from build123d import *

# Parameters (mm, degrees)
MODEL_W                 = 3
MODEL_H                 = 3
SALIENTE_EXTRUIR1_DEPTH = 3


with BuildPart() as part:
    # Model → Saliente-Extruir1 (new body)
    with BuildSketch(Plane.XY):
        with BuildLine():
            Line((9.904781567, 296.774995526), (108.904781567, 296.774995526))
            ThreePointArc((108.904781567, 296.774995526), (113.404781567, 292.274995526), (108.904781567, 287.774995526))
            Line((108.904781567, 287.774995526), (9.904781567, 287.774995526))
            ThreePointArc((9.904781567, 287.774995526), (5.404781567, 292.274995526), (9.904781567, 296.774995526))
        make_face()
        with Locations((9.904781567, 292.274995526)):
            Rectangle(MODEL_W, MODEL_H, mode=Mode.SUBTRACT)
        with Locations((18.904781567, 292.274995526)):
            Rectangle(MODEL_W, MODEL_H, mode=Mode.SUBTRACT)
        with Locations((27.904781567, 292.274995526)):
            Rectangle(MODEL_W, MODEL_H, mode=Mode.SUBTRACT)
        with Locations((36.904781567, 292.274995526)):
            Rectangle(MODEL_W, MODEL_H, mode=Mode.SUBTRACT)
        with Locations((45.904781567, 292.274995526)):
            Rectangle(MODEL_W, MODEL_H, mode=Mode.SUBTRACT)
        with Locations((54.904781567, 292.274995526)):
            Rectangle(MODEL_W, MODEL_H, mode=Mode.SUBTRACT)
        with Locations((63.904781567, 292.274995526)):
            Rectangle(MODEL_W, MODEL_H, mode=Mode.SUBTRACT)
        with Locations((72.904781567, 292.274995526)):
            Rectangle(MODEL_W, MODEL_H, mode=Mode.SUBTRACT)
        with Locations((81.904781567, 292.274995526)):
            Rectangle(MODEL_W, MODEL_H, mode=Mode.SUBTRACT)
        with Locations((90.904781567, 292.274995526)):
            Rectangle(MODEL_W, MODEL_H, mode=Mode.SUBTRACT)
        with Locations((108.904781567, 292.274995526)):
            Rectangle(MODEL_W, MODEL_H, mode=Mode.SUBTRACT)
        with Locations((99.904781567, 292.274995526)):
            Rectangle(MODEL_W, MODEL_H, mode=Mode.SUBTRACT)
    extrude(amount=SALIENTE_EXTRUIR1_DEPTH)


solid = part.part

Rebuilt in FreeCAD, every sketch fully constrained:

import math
import FreeCAD as App
import Part
import Sketcher

V = App.Vector
Q = App.Units.Quantity


def add_polygon(sketch, points):
    """Adds a closed chain of lines whose ends are joined by coincident constraints."""
    first, n = sketch.GeometryCount, len(points)
    for a, b in zip(points, points[1:] + points[:1]):
        sketch.addGeometry(Part.LineSegment(App.Vector(*a, 0), App.Vector(*b, 0)), False)
    for i in range(n):
        sketch.addConstraint(Sketcher.Constraint("Coincident", first + i, 2, first + (i + 1) % n, 1))

doc = App.newDocument("Part")
body = doc.addObject("PartDesign::Body", "Body")

# Sketch on XY plane
sketch1 = body.newObject("Sketcher::SketchObject", "Sketch")
sketch1.AttachmentSupport = (doc.getObject("XY_Plane"), [""])
sketch1.MapMode = "FlatFace"
sketch1.addGeometry(Part.LineSegment(V(108.9, 296.8, 0), V(9.9, 296.8, 0)), False)  # 0
sketch1.addGeometry(Part.ArcOfCircle(Part.Circle(V(9.9, 292.3, 0), V(0, 0, 1), 4.5), math.radians(90), math.radians(270)), False)  # 1
sketch1.addGeometry(Part.LineSegment(V(9.9, 287.8, 0), V(108.9, 287.8, 0)), False)  # 2
sketch1.addGeometry(Part.ArcOfCircle(Part.Circle(V(108.9, 292.3, 0), V(0, 0, 1), 4.5), math.radians(-90), math.radians(90)), False)  # 3
add_polygon(sketch1, [(107.4, 290.8), (107.4, 293.8), (110.4, 293.8), (110.4, 290.8)])  # lines 4-7
add_polygon(sketch1, [(98.4, 290.8), (98.4, 293.8), (101.4, 293.8), (101.4, 290.8)])  # lines 8-11
add_polygon(sketch1, [(89.4, 290.8), (89.4, 293.8), (92.4, 293.8), (92.4, 290.8)])  # lines 12-15
add_polygon(sketch1, [(80.4, 290.8), (80.4, 293.8), (83.4, 293.8), (83.4, 290.8)])  # lines 16-19
add_polygon(sketch1, [(71.4, 290.8), (71.4, 293.8), (74.4, 293.8), (74.4, 290.8)])  # lines 20-23
add_polygon(sketch1, [(62.4, 290.8), (62.4, 293.8), (65.4, 293.8), (65.4, 290.8)])  # lines 24-27
add_polygon(sketch1, [(53.4, 290.8), (53.4, 293.8), (56.4, 293.8), (56.4, 290.8)])  # lines 28-31
add_polygon(sketch1, [(44.4, 290.8), (44.4, 293.8), (47.4, 293.8), (47.4, 290.8)])  # lines 32-35
add_polygon(sketch1, [(35.4, 290.8), (35.4, 293.8), (38.4, 293.8), (38.4, 290.8)])  # lines 36-39
add_polygon(sketch1, [(26.4, 290.8), (26.4, 293.8), (29.4, 293.8), (29.4, 290.8)])  # lines 40-43
add_polygon(sketch1, [(17.4, 290.8), (17.4, 293.8), (20.4, 293.8), (20.4, 290.8)])  # lines 44-47
add_polygon(sketch1, [(8.4, 290.8), (8.4, 293.8), (11.4, 293.8), (11.4, 290.8)])  # lines 48-51
sketch1.addConstraint([
    Sketcher.Constraint("Tangent", 0, 2, 1, 1),
    Sketcher.Constraint("Tangent", 1, 2, 2, 1),
    Sketcher.Constraint("Tangent", 2, 2, 3, 1),
    Sketcher.Constraint("Tangent", 3, 2, 0, 1),
    Sketcher.Constraint("Horizontal", 0),
    Sketcher.Constraint("Horizontal", 2),
    Sketcher.Constraint("Vertical", 4),
    Sketcher.Constraint("Horizontal", 5),
    Sketcher.Constraint("Vertical", 6),
    Sketcher.Constraint("Horizontal", 7),
    Sketcher.Constraint("Vertical", 8),
    Sketcher.Constraint("Horizontal", 9),
    Sketcher.Constraint("Vertical", 10),
    Sketcher.Constraint("Horizontal", 11),
    Sketcher.Constraint("Vertical", 12),
    Sketcher.Constraint("Horizontal", 13),
    Sketcher.Constraint("Vertical", 14),
    Sketcher.Constraint("Horizontal", 15),
    Sketcher.Constraint("Vertical", 16),
    Sketcher.Constraint("Horizontal", 17),
    Sketcher.Constraint("Vertical", 18),
    Sketcher.Constraint("Horizontal", 19),
    Sketcher.Constraint("Vertical", 20),
    Sketcher.Constraint("Horizontal", 21),
    Sketcher.Constraint("Vertical", 22),
    Sketcher.Constraint("Horizontal", 23),
    Sketcher.Constraint("Vertical", 24),
    Sketcher.Constraint("Horizontal", 25),
    Sketcher.Constraint("Vertical", 26),
    Sketcher.Constraint("Horizontal", 27),
    Sketcher.Constraint("Vertical", 28),
    Sketcher.Constraint("Horizontal", 29),
    Sketcher.Constraint("Vertical", 30),
    Sketcher.Constraint("Horizontal", 31),
    Sketcher.Constraint("Vertical", 32),
    Sketcher.Constraint("Horizontal", 33),
    Sketcher.Constraint("Vertical", 34),
    Sketcher.Constraint("Horizontal", 35),
    Sketcher.Constraint("Vertical", 36),
    Sketcher.Constraint("Horizontal", 37),
    Sketcher.Constraint("Vertical", 38),
    Sketcher.Constraint("Horizontal", 39),
    Sketcher.Constraint("Vertical", 40),
    Sketcher.Constraint("Horizontal", 41),
    Sketcher.Constraint("Vertical", 42),
    Sketcher.Constraint("Horizontal", 43),
    Sketcher.Constraint("Vertical", 44),
    Sketcher.Constraint("Horizontal", 45),
    Sketcher.Constraint("Vertical", 46),
    Sketcher.Constraint("Horizontal", 47),
    Sketcher.Constraint("Vertical", 48),
    Sketcher.Constraint("Horizontal", 49),
    Sketcher.Constraint("Vertical", 50),
    Sketcher.Constraint("Horizontal", 51),
    Sketcher.Constraint("Horizontal", 5, 2, 8, 2),
    Sketcher.Constraint("Horizontal", 7, 2, 10, 2),
    Sketcher.Constraint("Horizontal", 9, 2, 12, 2),
    Sketcher.Constraint("Horizontal", 11, 2, 14, 2),
    Sketcher.Constraint("Horizontal", 13, 2, 16, 2),
    Sketcher.Constraint("Horizontal", 15, 2, 18, 2),
    Sketcher.Constraint("Horizontal", 17, 2, 20, 2),
    Sketcher.Constraint("Horizontal", 19, 2, 22, 2),
    Sketcher.Constraint("Horizontal", 21, 2, 24, 2),
    Sketcher.Constraint("Horizontal", 23, 2, 26, 2),
    Sketcher.Constraint("Horizontal", 25, 2, 28, 2),
    Sketcher.Constraint("Horizontal", 27, 2, 30, 2),
    Sketcher.Constraint("Horizontal", 29, 2, 32, 2),
    Sketcher.Constraint("Horizontal", 31, 2, 34, 2),
    Sketcher.Constraint("Horizontal", 33, 2, 36, 2),
    Sketcher.Constraint("Horizontal", 35, 2, 38, 2),
    Sketcher.Constraint("Horizontal", 37, 2, 40, 2),
    Sketcher.Constraint("Horizontal", 39, 2, 42, 2),
    Sketcher.Constraint("Horizontal", 41, 2, 44, 2),
    Sketcher.Constraint("Horizontal", 43, 2, 46, 2),
    Sketcher.Constraint("Horizontal", 45, 2, 48, 2),
    Sketcher.Constraint("Horizontal", 47, 2, 50, 2),
    Sketcher.Constraint("Equal", 7, 9),
    Sketcher.Constraint("Equal", 11, 13),
    Sketcher.Constraint("Equal", 15, 17),
    Sketcher.Constraint("Equal", 19, 21),
    Sketcher.Constraint("Equal", 23, 25),
    Sketcher.Constraint("Equal", 27, 29),
    Sketcher.Constraint("Equal", 31, 33),
    Sketcher.Constraint("Equal", 35, 37),
    Sketcher.Constraint("Equal", 39, 41),
    Sketcher.Constraint("Equal", 43, 45),
    Sketcher.Constraint("Equal", 47, 49),
    Sketcher.Constraint("Equal", 51, 4),
    Sketcher.Constraint("Radius", 1, Q("4.5 mm")),
    Sketcher.Constraint("DistanceX", 0, 2, 0, 1, Q("99 mm")),
    Sketcher.Constraint("DistanceX", 5, 1, 5, 2, Q("3 mm")),
    Sketcher.Constraint("DistanceY", 4, 2, 3, 2, Q("3 mm")),
    Sketcher.Constraint("DistanceX", 8, 2, 4, 2, Q("9 mm")),
    Sketcher.Constraint("DistanceX", 12, 2, 8, 2, Q("9 mm")),
    Sketcher.Constraint("DistanceX", 16, 2, 12, 2, Q("9 mm")),
    Sketcher.Constraint("DistanceX", 20, 2, 16, 2, Q("9 mm")),
    Sketcher.Constraint("DistanceX", 24, 2, 20, 2, Q("9 mm")),
    Sketcher.Constraint("DistanceX", 28, 2, 24, 2, Q("9 mm")),
    Sketcher.Constraint("DistanceX", 32, 2, 28, 2, Q("9 mm")),
    Sketcher.Constraint("DistanceX", 36, 2, 32, 2, Q("9 mm")),
    Sketcher.Constraint("DistanceX", 40, 2, 36, 2, Q("9 mm")),
    Sketcher.Constraint("DistanceX", 44, 2, 40, 2, Q("9 mm")),
    Sketcher.Constraint("DistanceX", 48, 2, 44, 2, Q("9 mm")),
    Sketcher.Constraint("DistanceX", 4, 2, 3, 3, Q("1.5 mm")),
    Sketcher.Constraint("DistanceX", -1, 1, 1, 3, Q("9.904782 mm")),
    Sketcher.Constraint("DistanceY", -1, 1, 1, 3, Q("292.274996 mm")),
])
pad1 = body.newObject("PartDesign::Pad", "Pad")
pad1.Profile = sketch1
pad1.Length = 3

doc.recompute()
